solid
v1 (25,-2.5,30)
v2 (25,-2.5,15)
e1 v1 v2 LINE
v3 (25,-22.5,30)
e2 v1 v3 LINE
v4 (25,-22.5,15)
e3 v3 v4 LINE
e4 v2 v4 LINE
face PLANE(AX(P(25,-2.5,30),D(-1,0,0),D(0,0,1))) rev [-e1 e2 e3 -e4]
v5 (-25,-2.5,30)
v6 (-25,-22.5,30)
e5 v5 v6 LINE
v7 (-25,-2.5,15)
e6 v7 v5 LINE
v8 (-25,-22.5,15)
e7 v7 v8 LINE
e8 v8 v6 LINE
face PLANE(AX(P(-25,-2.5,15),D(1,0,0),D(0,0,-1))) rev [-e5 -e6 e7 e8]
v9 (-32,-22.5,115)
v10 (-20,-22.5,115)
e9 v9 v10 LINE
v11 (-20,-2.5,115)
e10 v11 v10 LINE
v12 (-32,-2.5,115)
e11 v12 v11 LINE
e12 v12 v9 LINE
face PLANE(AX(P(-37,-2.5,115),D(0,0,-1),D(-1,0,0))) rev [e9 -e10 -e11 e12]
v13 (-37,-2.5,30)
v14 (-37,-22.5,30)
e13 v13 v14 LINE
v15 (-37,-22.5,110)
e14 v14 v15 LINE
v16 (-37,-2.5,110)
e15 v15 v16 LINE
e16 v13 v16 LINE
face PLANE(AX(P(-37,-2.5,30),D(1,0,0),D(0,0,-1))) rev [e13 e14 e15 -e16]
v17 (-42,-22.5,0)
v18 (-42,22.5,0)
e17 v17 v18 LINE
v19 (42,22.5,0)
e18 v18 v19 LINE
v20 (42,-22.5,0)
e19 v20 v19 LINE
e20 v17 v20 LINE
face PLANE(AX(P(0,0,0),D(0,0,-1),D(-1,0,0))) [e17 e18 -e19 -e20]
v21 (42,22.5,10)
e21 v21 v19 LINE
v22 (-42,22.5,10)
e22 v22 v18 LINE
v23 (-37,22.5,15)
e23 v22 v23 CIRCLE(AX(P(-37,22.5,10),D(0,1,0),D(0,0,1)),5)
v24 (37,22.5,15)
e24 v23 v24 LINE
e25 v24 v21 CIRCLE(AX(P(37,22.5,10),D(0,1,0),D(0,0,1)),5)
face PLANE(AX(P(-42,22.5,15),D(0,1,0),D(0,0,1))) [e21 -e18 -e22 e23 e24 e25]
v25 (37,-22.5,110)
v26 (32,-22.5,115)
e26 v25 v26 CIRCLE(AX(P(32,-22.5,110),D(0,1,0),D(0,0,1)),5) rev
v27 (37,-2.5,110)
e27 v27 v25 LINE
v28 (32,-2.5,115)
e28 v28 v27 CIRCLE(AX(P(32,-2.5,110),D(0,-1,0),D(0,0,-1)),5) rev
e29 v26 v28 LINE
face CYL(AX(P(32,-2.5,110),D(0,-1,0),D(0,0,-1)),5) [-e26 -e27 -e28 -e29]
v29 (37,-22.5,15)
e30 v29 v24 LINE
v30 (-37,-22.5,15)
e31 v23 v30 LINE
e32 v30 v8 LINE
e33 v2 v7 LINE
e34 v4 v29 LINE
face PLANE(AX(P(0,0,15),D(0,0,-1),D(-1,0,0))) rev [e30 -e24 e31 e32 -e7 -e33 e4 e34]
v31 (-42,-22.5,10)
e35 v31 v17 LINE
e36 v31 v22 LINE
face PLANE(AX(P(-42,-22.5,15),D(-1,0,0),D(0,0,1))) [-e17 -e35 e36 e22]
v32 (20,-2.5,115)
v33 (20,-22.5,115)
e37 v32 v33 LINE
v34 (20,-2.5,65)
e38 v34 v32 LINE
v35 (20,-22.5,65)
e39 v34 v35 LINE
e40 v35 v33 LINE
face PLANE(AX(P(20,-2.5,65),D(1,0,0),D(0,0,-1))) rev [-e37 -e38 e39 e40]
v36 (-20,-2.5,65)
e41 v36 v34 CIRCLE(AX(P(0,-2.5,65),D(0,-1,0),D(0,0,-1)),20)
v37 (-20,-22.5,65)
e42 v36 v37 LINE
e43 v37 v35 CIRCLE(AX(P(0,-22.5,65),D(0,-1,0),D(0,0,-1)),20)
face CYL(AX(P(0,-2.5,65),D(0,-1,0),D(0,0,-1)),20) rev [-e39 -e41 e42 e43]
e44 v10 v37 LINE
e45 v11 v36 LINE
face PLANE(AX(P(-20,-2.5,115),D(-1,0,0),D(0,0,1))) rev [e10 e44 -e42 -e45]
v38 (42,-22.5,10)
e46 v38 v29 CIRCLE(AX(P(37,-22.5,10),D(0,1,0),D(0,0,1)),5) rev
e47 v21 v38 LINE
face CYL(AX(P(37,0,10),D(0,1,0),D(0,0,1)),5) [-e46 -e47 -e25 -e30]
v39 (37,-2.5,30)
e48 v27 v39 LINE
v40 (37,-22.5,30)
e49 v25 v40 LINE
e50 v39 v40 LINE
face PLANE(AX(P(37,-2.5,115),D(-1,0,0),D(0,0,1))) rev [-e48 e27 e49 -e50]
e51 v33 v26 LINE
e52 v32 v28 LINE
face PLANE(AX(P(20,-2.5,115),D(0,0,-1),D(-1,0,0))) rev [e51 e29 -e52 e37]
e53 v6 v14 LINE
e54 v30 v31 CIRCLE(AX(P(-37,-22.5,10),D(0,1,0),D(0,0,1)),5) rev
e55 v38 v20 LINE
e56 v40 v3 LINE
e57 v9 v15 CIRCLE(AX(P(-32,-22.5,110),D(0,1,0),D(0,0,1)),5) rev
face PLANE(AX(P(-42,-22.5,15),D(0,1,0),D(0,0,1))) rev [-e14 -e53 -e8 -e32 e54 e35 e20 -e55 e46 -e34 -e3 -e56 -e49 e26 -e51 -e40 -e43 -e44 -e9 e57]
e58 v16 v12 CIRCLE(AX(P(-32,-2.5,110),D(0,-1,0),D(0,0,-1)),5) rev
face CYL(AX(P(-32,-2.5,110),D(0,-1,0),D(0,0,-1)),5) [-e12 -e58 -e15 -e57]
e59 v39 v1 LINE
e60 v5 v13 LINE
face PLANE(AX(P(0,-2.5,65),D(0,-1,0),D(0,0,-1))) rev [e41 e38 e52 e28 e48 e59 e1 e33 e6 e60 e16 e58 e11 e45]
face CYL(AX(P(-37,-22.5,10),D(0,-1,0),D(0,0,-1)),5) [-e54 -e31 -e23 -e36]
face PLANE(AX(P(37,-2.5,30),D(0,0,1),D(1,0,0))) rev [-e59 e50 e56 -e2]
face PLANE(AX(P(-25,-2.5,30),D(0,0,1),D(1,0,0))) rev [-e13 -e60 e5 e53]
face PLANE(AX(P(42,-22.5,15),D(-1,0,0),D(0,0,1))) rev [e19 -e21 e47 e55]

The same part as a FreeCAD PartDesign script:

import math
import FreeCAD as App
import Part
import Sketcher


def edges_at(feature, points):
    """Names of the edges that pass closest to the given points."""
    edges = feature.Shape.Edges
    near = lambda p: min(range(len(edges)), key=lambda i: edges[i].distToShape(Part.Vertex(*p))[0])
    return sorted({f"Edge{near(p) + 1}" for p in points})


def add_polygon(sketch, points):
    """Adds a closed chain of lines whose ends are joined by coincident constraints."""
    first, n = sketch.GeometryCount, len(points)
    for a, b in zip(points, points[1:] + points[:1]):
        sketch.addGeometry(Part.LineSegment(App.Vector(*a, 0), App.Vector(*b, 0)), False)
    for i in range(n):
        sketch.addConstraint(Sketcher.Constraint("Coincident", first + i, 2, first + (i + 1) % n, 1))

doc = App.newDocument("Part")
body = doc.addObject("PartDesign::Body", "Body")

# Sketch on XY plane
sketch1 = body.newObject("Sketcher::SketchObject", "Sketch")
sketch1.AttachmentSupport = (doc.getObject("XY_Plane"), [""])
sketch1.MapMode = "FlatFace"
add_polygon(sketch1, [(-42, 22), (-42, -22), (42, -22), (42, 22)])  # lines 0-3
sketch1.addConstraint(Sketcher.Constraint("Vertical", 0))
sketch1.addConstraint(Sketcher.Constraint("Horizontal", 1))
sketch1.addConstraint(Sketcher.Constraint("Vertical", 2))
sketch1.addConstraint(Sketcher.Constraint("Horizontal", 3))
sketch1.addConstraint(Sketcher.Constraint("Symmetric", 0, 2, 2, 2, -1, 1))
sketch1.addConstraint(Sketcher.Constraint("DistanceX", 1, 1, 1, 2, 84.0))
sketch1.addConstraint(Sketcher.Constraint("DistanceY", 0, 2, 0, 1, 45.0))
pad1 = body.newObject("PartDesign::Pad", "Pad")
pad1.Profile = sketch1
pad1.Length = 15

# Sketch on XZ plane
sketch2 = body.newObject("Sketcher::SketchObject", "Sketch001")
sketch2.AttachmentSupport = (doc.getObject("XZ_Plane"), [""])
sketch2.MapMode = "FlatFace"
sketch2.AttachmentOffset = App.Placement(App.Vector(0, 0, 22.5), App.Rotation())
sketch2.addGeometry(Part.LineSegment(App.Vector(37, 30, 0), App.Vector(37, 115, 0)), False)
sketch2.addGeometry(Part.LineSegment(App.Vector(37, 115, 0), App.Vector(20, 115, 0)), False)
sketch2.addGeometry(Part.LineSegment(App.Vector(20, 115, 0), App.Vector(20, 65, 0)), False)
sketch2.addGeometry(Part.ArcOfCircle(Part.Circle(App.Vector(0, 65, 0), App.Vector(0, 0, 1), 20), math.radians(180), math.radians(360)), False)
sketch2.addGeometry(Part.LineSegment(App.Vector(-20, 65, 0), App.Vector(-20, 115, 0)), False)
sketch2.addGeometry(Part.LineSegment(App.Vector(-20, 115, 0), App.Vector(-37, 115, 0)), False)
sketch2.addGeometry(Part.LineSegment(App.Vector(-37, 115, 0), App.Vector(-37, 30, 0)), False)
sketch2.addGeometry(Part.LineSegment(App.Vector(-37, 30, 0), App.Vector(-25, 30, 0)), False)
sketch2.addGeometry(Part.LineSegment(App.Vector(-25, 30, 0), App.Vector(-25, 15, 0)), False)
sketch2.addGeometry(Part.LineSegment(App.Vector(-25, 15, 0), App.Vector(25, 15, 0)), False)
sketch2.addGeometry(Part.LineSegment(App.Vector(25, 15, 0), App.Vector(25, 30, 0)), False)
sketch2.addGeometry(Part.LineSegment(App.Vector(25, 30, 0), App.Vector(37, 30, 0)), False)
sketch2.addConstraint(Sketcher.Constraint("Coincident", 0, 2, 1, 1))
sketch2.addConstraint(Sketcher.Constraint("Coincident", 1, 2, 2, 1))
sketch2.addConstraint(Sketcher.Constraint("Tangent", 2, 2, 3, 2))
sketch2.addConstraint(Sketcher.Constraint("Tangent", 3, 1, 4, 1))
sketch2.addConstraint(Sketcher.Constraint("Coincident", 4, 2, 5, 1))
sketch2.addConstraint(Sketcher.Constraint("Coincident", 5, 2, 6, 1))
sketch2.addConstraint(Sketcher.Constraint("Coincident", 6, 2, 7, 1))
sketch2.addConstraint(Sketcher.Constraint("Coincident", 7, 2, 8, 1))
sketch2.addConstraint(Sketcher.Constraint("Coincident", 8, 2, 9, 1))
sketch2.addConstraint(Sketcher.Constraint("Coincident", 9, 2, 10, 1))
sketch2.addConstraint(Sketcher.Constraint("Coincident", 10, 2, 11, 1))
sketch2.addConstraint(Sketcher.Constraint("Coincident", 11, 2, 0, 1))
sketch2.addConstraint(Sketcher.Constraint("Vertical", 0))
sketch2.addConstraint(Sketcher.Constraint("Horizontal", 1))
sketch2.addConstraint(Sketcher.Constraint("Vertical", 2))
sketch2.addConstraint(Sketcher.Constraint("Vertical", 4))
sketch2.addConstraint(Sketcher.Constraint("Horizontal", 5))
sketch2.addConstraint(Sketcher.Constraint("Vertical", 6))
sketch2.addConstraint(Sketcher.Constraint("Horizontal", 7))
sketch2.addConstraint(Sketcher.Constraint("Vertical", 8))
sketch2.addConstraint(Sketcher.Constraint("Horizontal", 9))
sketch2.addConstraint(Sketcher.Constraint("Vertical", 10))
sketch2.addConstraint(Sketcher.Constraint("Horizontal", 11))
sketch2.addConstraint(Sketcher.Constraint("Symmetric", 1, 2, 4, 2, -2))
sketch2.addConstraint(Sketcher.Constraint("Symmetric", 7, 2, 10, 2, -2))
sketch2.addConstraint(Sketcher.Constraint("Equal", 1, 5))
sketch2.addConstraint(Sketcher.Constraint("Equal", 9, 2))
sketch2.addConstraint(Sketcher.Constraint("Radius", 3, 20.0))
sketch2.addConstraint(Sketcher.Constraint("DistanceX", 1, 2, 1, 1, 17.0))
sketch2.addConstraint(Sketcher.Constraint("DistanceX", 7, 1, 7, 2, 12.0))
sketch2.addConstraint(Sketcher.Constraint("DistanceY", 0, 1, 0, 2, 85.0))
sketch2.addConstraint(Sketcher.Constraint("DistanceY", 8, 2, 8, 1, 15.0))
sketch2.addConstraint(Sketcher.Constraint("DistanceY", -1, 1, 3, 3, 65.0))
pad2 = body.newObject("PartDesign::Pad", "Pad001")
pad2.Profile = sketch2
pad2.Length = 20
pad2.Reversed = True
doc.recompute()

fillet = body.newObject("PartDesign::Fillet", "Fillet")
fillet.Base = (pad2, edges_at(pad2, [
    (42, 0, 15),
    (37, -12.5, 115),
    (-37, -12.5, 115),
    (-42, 0, 15),
]))
fillet.Radius = 5

doc.recompute()
